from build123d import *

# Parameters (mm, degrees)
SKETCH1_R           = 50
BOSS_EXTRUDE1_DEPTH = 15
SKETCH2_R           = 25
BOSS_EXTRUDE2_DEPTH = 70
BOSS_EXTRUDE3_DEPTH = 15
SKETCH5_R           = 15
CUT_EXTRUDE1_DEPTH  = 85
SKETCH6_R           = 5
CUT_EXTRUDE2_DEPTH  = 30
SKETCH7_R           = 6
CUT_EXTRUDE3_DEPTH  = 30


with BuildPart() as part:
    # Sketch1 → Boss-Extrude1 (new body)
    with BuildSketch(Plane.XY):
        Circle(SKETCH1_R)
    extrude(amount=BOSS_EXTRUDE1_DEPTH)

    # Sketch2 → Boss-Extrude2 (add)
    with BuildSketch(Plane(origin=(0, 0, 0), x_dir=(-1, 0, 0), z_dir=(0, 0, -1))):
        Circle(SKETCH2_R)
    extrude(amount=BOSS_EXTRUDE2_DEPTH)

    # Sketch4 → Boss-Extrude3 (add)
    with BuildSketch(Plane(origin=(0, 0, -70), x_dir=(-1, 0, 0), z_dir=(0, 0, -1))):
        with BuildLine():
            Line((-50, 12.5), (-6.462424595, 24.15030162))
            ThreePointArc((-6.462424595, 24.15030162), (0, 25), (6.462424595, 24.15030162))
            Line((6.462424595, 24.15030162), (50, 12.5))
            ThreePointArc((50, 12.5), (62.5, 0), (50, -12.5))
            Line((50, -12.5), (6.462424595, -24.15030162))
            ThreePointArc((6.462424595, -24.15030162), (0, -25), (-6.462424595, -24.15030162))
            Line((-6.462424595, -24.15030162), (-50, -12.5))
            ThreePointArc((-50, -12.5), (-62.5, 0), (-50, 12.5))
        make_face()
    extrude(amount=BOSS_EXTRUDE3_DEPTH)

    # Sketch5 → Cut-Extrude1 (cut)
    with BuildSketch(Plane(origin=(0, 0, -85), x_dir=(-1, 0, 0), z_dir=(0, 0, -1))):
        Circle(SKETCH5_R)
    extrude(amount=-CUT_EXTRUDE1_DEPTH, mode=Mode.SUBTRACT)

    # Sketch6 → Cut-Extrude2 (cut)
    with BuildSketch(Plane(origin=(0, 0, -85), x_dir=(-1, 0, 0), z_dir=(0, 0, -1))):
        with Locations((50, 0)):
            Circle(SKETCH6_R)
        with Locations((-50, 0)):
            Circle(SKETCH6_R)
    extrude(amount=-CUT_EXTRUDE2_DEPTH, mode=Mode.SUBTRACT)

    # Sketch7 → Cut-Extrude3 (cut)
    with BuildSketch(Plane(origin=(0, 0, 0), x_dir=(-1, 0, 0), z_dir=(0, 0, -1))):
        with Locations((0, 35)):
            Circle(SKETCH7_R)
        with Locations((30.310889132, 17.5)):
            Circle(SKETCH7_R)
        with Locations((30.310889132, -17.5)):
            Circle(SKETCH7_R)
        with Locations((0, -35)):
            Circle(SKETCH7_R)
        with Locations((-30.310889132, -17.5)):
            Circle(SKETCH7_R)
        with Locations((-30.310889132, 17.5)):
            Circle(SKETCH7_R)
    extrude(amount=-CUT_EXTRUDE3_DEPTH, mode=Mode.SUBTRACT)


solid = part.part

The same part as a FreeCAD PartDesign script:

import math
import FreeCAD as App
import Part
import Sketcher

V = App.Vector

doc = App.newDocument("Part")
params = doc.addObject("Spreadsheet::Sheet", "Params")
for row, (alias, value) in enumerate([
    ("sketch1_diameter", "100 mm"),
    ("pad1_length", "15 mm"),
    ("sketch2_diameter", "50 mm"),
    ("pad2_length", "70 mm"),
    ("sketch3_radius", "25 mm"),
    ("sketch3_radius2", "12.5 mm"),
    ("pad3_length", "15 mm"),
    ("sketch4_diameter", "30 mm"),
    ("pocket1_length", "85 mm"),
    ("sketch5_diameter", "10 mm"),
    ("pocket2_length", "30 mm"),
    ("sketch6_diameter", "12 mm"),
    ("pocket3_length", "30 mm"),
], start=1):
    params.set(f"A{row}", alias)
    params.set(f"B{row}", "=" + value)
    params.setAlias(f"B{row}", alias)

body = doc.addObject("PartDesign::Body", "Body")

sketch1 = doc.addObject("Sketcher::SketchObject", "Sketch")
body.addObject(sketch1)
sketch1.AttachmentSupport = (doc.XY_Plane, [""])
sketch1.MapMode = "FlatFace"
sketch1.addGeometry(Part.Circle(V(0, 0, 0), V(0, 0, 1), 50), False)
sketch1.addConstraint([
    Sketcher.Constraint("Coincident", 0, 3, -1, 1),
    Sketcher.Constraint("Diameter", 0, 100.0),
])
sketch1.setExpression("Constraints[1]", "Params.sketch1_diameter")
pad1 = doc.addObject("PartDesign::Pad", "Pad")
body.addObject(pad1)
pad1.Profile = sketch1
pad1.setExpression("Length", "Params.pad1_length")

sketch2 = doc.addObject("Sketcher::SketchObject", "Sketch001")
body.addObject(sketch2)
sketch2.AttachmentSupport = (doc.XY_Plane, [""])
sketch2.MapMode = "FlatFace"
sketch2.addGeometry(Part.Circle(V(0, 0, 0), V(0, 0, 1), 25), False)
sketch2.addConstraint([
    Sketcher.Constraint("Coincident", 0, 3, -1, 1),
    Sketcher.Constraint("Diameter", 0, 50.0),
])
sketch2.setExpression("Constraints[1]", "Params.sketch2_diameter")
pad2 = doc.addObject("PartDesign::Pad", "Pad001")
body.addObject(pad2)
pad2.Profile = sketch2
pad2.setExpression("Length", "Params.pad2_length")
pad2.Reversed = True

sketch3 = doc.addObject("Sketcher::SketchObject", "Sketch002")
body.addObject(sketch3)
sketch3.AttachmentSupport = (doc.XY_Plane, [""])
sketch3.MapMode = "FlatFace"
sketch3.AttachmentOffset = App.Placement(V(0, 0, -70), App.Rotation())
sketch3.addGeometry([
    Part.LineSegment(V(6, 24, 0), V(50, 12, 0)),
    Part.ArcOfCircle(Part.Circle(V(50, 0, 0), V(0, 0, 1), 12), math.radians(-90), math.radians(90)),
    Part.LineSegment(V(50, -12, 0), V(6, -24, 0)),
    Part.ArcOfCircle(Part.Circle(V(0, 0, 0), V(0, 0, 1), 25), math.radians(-105), math.radians(-75)),
    Part.LineSegment(V(-6, -24, 0), V(-50, -12, 0)),
    Part.ArcOfCircle(Part.Circle(V(-50, 0, 0), V(0, 0, 1), 12), math.radians(90), math.radians(270)),
    Part.LineSegment(V(-50, 12, 0), V(-6, 24, 0)),
    Part.ArcOfCircle(Part.Circle(V(0, 0, 0), V(0, 0, 1), 25), math.radians(75), math.radians(105)),
], False)
sketch3.addConstraint([
    Sketcher.Constraint("Coincident", 0, 2, 1, 2),
    Sketcher.Constraint("Coincident", 1, 1, 2, 1),
    Sketcher.Constraint("Tangent", 2, 2, 3, 2),
    Sketcher.Constraint("Tangent", 3, 1, 4, 1),
    Sketcher.Constraint("Coincident", 4, 2, 5, 2),
    Sketcher.Constraint("Coincident", 5, 1, 6, 1),
    Sketcher.Constraint("Tangent", 6, 2, 7, 2),
    Sketcher.Constraint("Tangent", 7, 1, 0, 1),
    Sketcher.Constraint("Coincident", 3, 3, -1, 1),
    Sketcher.Constraint("Coincident", 7, 3, -1, 1),
    Sketcher.Constraint("Equal", 1, 5),
    Sketcher.Constraint("Equal", 3, 7),
    Sketcher.Constraint("Symmetric", 1, 3, 5, 3, -1, 1),
    Sketcher.Constraint("Symmetric", 1, 1, 4, 2, -2),
    Sketcher.Constraint("Parallel", 0, 4),
    Sketcher.Constraint("Parallel", 2, 6),
    Sketcher.Constraint("Vertical", 1, 3, 0, 2),
    Sketcher.Constraint("Radius", 3, 25.0),
    Sketcher.Constraint("Radius", 1, 12.5),
    Sketcher.Constraint("DistanceX", -1, 1, 1, 3, 50.0),
])
sketch3.setExpression("Constraints[17]", "Params.sketch3_radius")
sketch3.setExpression("Constraints[18]", "Params.sketch3_radius2")
pad3 = doc.addObject("PartDesign::Pad", "Pad002")
body.addObject(pad3)
pad3.Profile = sketch3
pad3.setExpression("Length", "Params.pad3_length")
pad3.Reversed = True

sketch4 = doc.addObject("Sketcher::SketchObject", "Sketch003")
body.addObject(sketch4)
sketch4.AttachmentSupport = (doc.XY_Plane, [""])
sketch4.MapMode = "FlatFace"
sketch4.AttachmentOffset = App.Placement(V(0, 0, -85), App.Rotation())
sketch4.addGeometry(Part.Circle(V(0, 0, 0), V(0, 0, 1), 15), False)
sketch4.addConstraint([
    Sketcher.Constraint("Coincident", 0, 3, -1, 1),
    Sketcher.Constraint("Diameter", 0, 30.0),
])
sketch4.setExpression("Constraints[1]", "Params.sketch4_diameter")
pocket1 = doc.addObject("PartDesign::Pocket", "Pocket")
body.addObject(pocket1)
pocket1.Profile = sketch4
pocket1.setExpression("Length", "Params.pocket1_length")
pocket1.Reversed = True

sketch5 = doc.addObject("Sketcher::SketchObject", "Sketch004")
body.addObject(sketch5)
sketch5.AttachmentSupport = (doc.XY_Plane, [""])
sketch5.MapMode = "FlatFace"
sketch5.AttachmentOffset = App.Placement(V(0, 0, -85), App.Rotation())
sketch5.addGeometry([
    Part.Circle(V(-50, 0, 0), V(0, 0, 1), 5),
    Part.Circle(V(50, 0, 0), V(0, 0, 1), 5),
], False)
sketch5.addConstraint([
    Sketcher.Constraint("Equal", 0, 1),
    Sketcher.Constraint("Symmetric", 0, 3, 1, 3, -1, 1),
    Sketcher.Constraint("PointOnObject", 0, 3, -1),
    Sketcher.Constraint("Diameter", 0, 10.0),
    Sketcher.Constraint("DistanceX", 0, 3, -1, 1, 50.0),
])
sketch5.setExpression("Constraints[3]", "Params.sketch5_diameter")
pocket2 = doc.addObject("PartDesign::Pocket", "Pocket001")
body.addObject(pocket2)
pocket2.Profile = sketch5
pocket2.setExpression("Length", "Params.pocket2_length")
pocket2.Reversed = True

sketch6 = doc.addObject("Sketcher::SketchObject", "Sketch005")
body.addObject(sketch6)
sketch6.AttachmentSupport = (doc.XY_Plane, [""])
sketch6.MapMode = "FlatFace"
sketch6.addGeometry([
    Part.Circle(V(0, 35, 0), V(0, 0, 1), 6),
    Part.Circle(V(-30, 18, 0), V(0, 0, 1), 6),
    Part.Circle(V(-30, -18, 0), V(0, 0, 1), 6),
    Part.Circle(V(0, -35, 0), V(0, 0, 1), 6),
    Part.Circle(V(30, -18, 0), V(0, 0, 1), 6),
    Part.Circle(V(30, 18, 0), V(0, 0, 1), 6),
], False)
sketch6.addConstraint([
    Sketcher.Constraint("Equal", 0, 1),
    Sketcher.Constraint("Equal", 1, 2),
    Sketcher.Constraint("Equal", 2, 3),
    Sketcher.Constraint("Equal", 3, 4),
    Sketcher.Constraint("Equal", 4, 5),
    Sketcher.Constraint("Symmetric", 0, 3, 3, 3, -1, 1),
    Sketcher.Constraint("Symmetric", 1, 3, 4, 3, -1, 1),
    Sketcher.Constraint("Symmetric", 2, 3, 5, 3, -1, 1),
    Sketcher.Constraint("Symmetric", 2, 3, 4, 3, -2),
    Sketcher.Constraint("PointOnObject", 0, 3, -2),
    Sketcher.Constraint("Diameter", 0, 12.0),
    Sketcher.Constraint("DistanceY", -1, 1, 0, 3, 35.0),
    Sketcher.Constraint("DistanceY", 2, 3, 1, 3, 35.0),
    Sketcher.Constraint("DistanceX", 1, 3, -1, 1, 30.310889),
])
sketch6.setExpression("Constraints[10]", "Params.sketch6_diameter")
pocket3 = doc.addObject("PartDesign::Pocket", "Pocket002")
body.addObject(pocket3)
pocket3.Profile = sketch6
pocket3.setExpression("Length", "Params.pocket3_length")
pocket3.Reversed = True

doc.recompute()
